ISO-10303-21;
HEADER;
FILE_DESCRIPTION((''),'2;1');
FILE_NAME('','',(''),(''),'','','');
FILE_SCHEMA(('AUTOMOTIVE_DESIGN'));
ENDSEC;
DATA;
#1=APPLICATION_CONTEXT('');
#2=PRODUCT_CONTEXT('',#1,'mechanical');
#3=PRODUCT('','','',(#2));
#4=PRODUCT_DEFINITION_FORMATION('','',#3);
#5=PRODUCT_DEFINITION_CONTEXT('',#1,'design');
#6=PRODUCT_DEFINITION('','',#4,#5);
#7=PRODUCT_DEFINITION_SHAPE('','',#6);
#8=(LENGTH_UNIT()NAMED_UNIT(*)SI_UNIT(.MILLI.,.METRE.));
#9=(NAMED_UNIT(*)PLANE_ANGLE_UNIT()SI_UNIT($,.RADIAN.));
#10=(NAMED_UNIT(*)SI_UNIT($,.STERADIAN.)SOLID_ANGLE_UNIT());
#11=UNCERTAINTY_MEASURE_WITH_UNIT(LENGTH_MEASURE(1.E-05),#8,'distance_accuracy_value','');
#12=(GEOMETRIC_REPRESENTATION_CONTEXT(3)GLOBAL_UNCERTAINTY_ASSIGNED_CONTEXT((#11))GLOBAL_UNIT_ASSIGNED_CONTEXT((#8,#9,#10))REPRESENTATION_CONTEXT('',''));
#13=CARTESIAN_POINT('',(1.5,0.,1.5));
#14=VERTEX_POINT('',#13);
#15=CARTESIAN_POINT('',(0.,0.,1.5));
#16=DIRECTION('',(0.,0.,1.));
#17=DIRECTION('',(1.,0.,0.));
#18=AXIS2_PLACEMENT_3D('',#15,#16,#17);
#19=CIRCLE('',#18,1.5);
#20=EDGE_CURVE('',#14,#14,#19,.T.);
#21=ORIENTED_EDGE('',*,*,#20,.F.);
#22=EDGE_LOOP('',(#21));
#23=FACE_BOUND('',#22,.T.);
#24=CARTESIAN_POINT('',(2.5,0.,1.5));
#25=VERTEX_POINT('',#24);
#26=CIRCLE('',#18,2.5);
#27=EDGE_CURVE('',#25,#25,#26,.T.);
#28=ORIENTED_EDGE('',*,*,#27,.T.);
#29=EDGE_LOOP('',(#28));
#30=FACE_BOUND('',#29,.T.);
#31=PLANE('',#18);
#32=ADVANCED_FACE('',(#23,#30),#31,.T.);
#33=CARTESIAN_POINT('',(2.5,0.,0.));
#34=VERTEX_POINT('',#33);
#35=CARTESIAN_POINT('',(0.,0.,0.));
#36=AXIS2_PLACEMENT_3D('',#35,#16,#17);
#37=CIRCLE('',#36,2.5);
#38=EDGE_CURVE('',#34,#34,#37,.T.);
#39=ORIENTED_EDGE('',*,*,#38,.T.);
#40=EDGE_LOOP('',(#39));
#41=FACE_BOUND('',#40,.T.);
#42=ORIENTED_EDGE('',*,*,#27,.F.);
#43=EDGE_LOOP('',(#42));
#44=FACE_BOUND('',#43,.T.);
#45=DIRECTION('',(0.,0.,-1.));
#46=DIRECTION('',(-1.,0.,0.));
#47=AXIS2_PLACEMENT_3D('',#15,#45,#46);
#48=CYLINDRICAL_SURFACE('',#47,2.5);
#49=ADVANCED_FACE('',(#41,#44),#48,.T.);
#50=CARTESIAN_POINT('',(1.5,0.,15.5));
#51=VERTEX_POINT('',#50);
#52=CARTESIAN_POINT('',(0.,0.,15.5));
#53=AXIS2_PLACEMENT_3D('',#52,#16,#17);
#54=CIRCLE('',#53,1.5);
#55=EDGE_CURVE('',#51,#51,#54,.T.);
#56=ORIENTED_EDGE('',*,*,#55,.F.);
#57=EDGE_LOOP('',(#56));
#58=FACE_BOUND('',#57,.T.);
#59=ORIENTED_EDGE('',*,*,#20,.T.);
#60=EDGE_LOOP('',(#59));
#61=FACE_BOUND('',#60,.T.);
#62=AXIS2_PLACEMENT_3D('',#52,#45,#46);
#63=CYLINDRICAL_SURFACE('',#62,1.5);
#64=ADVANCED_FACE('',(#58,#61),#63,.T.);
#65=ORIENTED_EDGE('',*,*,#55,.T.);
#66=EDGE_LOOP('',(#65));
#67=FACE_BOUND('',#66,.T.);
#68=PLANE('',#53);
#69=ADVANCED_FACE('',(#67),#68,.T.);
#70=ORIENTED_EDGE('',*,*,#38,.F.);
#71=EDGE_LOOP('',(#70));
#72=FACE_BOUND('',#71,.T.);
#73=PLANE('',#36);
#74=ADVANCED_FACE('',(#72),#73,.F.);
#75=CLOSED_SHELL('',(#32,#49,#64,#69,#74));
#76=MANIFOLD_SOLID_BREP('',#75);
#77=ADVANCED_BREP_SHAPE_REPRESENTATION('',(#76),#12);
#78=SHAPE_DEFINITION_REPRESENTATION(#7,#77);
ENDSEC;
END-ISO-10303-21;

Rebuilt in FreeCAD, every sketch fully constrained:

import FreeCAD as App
import Part
import Sketcher

V = App.Vector

doc = App.newDocument("Part")
params = doc.addObject("Spreadsheet::Sheet", "Params")
for row, (alias, value) in enumerate([
    ("sketch1_diameter", "5 mm"),
    ("pad1_length", "1.5 mm"),
    ("sketch2_diameter", "3 mm"),
    ("pad2_length", "14 mm"),
], start=1):
    params.set(f"A{row}", alias)
    params.set(f"B{row}", "=" + value)
    params.setAlias(f"B{row}", alias)

body = doc.addObject("PartDesign::Body", "Body")

sketch1 = body.newObject("Sketcher::SketchObject", "Sketch")
sketch1.AttachmentSupport = (doc.getObject("XY_Plane"), [""])
sketch1.MapMode = "FlatFace"
sketch1.addGeometry(Part.Circle(V(0, 0, 0), V(0, 0, 1), 2.5), False)
sketch1.addConstraint(Sketcher.Constraint("Coincident", 0, 3, -1, 1))
sketch1.addConstraint(Sketcher.Constraint("Diameter", 0, 5.0))
sketch1.setExpression("Constraints[1]", "Params.sketch1_diameter")
pad1 = body.newObject("PartDesign::Pad", "Pad")
pad1.Profile = sketch1
pad1.setExpression("Length", "Params.pad1_length")

sketch2 = body.newObject("Sketcher::SketchObject", "Sketch001")
sketch2.AttachmentSupport = (doc.getObject("XY_Plane"), [""])
sketch2.MapMode = "FlatFace"
sketch2.AttachmentOffset = App.Placement(V(0, 0, 1.5), App.Rotation())
sketch2.addGeometry(Part.Circle(V(0, 0, 0), V(0, 0, 1), 1.5), False)
sketch2.addConstraint(Sketcher.Constraint("Coincident", 0, 3, -1, 1))
sketch2.addConstraint(Sketcher.Constraint("Diameter", 0, 3.0))
sketch2.setExpression("Constraints[1]", "Params.sketch2_diameter")
pad2 = body.newObject("PartDesign::Pad", "Pad001")
pad2.Profile = sketch2
pad2.setExpression("Length", "Params.pad2_length")

doc.recompute()
